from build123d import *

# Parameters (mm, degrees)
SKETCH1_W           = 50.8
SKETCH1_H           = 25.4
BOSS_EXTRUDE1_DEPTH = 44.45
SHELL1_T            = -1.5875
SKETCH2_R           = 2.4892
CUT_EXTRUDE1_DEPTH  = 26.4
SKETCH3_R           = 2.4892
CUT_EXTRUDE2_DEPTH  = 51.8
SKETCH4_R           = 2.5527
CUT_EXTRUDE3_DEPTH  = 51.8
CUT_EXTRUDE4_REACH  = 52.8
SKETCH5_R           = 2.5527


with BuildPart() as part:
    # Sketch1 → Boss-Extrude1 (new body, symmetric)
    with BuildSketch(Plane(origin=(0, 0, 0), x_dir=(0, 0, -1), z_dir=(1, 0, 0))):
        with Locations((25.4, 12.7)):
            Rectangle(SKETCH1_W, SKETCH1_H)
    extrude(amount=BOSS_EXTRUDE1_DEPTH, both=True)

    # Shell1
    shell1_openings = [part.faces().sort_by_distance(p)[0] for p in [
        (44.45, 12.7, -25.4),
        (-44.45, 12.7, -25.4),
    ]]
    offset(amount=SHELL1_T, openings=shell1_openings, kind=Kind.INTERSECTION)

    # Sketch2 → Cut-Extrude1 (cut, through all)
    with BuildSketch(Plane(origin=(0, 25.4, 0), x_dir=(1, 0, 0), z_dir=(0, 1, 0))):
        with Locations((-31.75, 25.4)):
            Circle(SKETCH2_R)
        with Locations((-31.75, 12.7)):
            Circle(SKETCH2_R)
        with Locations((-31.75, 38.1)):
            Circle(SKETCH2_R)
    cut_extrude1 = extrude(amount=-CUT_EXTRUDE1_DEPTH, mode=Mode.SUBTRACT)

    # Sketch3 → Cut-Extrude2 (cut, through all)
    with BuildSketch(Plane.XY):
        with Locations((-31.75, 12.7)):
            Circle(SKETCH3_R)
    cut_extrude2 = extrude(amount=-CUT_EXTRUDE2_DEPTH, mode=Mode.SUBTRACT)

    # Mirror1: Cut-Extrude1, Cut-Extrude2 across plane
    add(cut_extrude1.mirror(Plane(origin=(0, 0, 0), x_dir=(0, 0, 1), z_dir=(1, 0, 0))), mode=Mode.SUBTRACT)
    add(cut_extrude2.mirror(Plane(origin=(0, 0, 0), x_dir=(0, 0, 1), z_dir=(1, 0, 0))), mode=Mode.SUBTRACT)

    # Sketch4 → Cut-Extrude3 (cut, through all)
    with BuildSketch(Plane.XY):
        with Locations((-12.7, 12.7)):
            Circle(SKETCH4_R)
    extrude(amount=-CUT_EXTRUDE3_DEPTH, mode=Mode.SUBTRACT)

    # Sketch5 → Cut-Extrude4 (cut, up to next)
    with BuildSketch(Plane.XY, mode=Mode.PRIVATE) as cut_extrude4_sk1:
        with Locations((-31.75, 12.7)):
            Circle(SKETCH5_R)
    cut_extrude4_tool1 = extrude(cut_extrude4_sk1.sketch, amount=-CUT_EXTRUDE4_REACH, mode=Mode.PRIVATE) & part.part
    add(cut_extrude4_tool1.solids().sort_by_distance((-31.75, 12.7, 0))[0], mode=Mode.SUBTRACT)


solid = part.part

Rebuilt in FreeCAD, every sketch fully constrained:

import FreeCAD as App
import Part
import Sketcher
from FreeCAD import Vector
Q = App.Units.Quantity


def faces_at(feature, points):
    """Names of the faces that lie closest to the given points."""
    faces = feature.Shape.Faces
    near = lambda p: min(range(len(faces)), key=lambda i: faces[i].distToShape(Part.Vertex(*p))[0])
    return sorted({f"Face{near(p) + 1}" for p in points})


def add_polygon(sketch, points):
    """Adds a closed chain of lines whose ends are joined by coincident constraints."""
    first, n = sketch.GeometryCount, len(points)
    for a, b in zip(points, points[1:] + points[:1]):
        sketch.addGeometry(Part.LineSegment(App.Vector(*a, 0), App.Vector(*b, 0)), False)
    for i in range(n):
        sketch.addConstraint(Sketcher.Constraint("Coincident", first + i, 2, first + (i + 1) % n, 1))

doc = App.newDocument("Part")
body = doc.addObject("PartDesign::Body", "Body")

# Sketch on YZ plane
sketch1 = body.newObject("Sketcher::SketchObject", "Sketch")
sketch1.AttachmentSupport = (doc.getObject("YZ_Plane"), [""])
sketch1.MapMode = "FlatFace"
add_polygon(sketch1, [(25, 0), (0, 0), (0, -51), (25, -51)])  # lines 0-3
sketch1.addConstraint(Sketcher.Constraint("Horizontal", 0))
sketch1.addConstraint(Sketcher.Constraint("Vertical", 1))
sketch1.addConstraint(Sketcher.Constraint("Horizontal", 2))
sketch1.addConstraint(Sketcher.Constraint("Vertical", 3))
sketch1.addConstraint(Sketcher.Constraint("Coincident", 0, 2, -1, 1))
sketch1.addConstraint(Sketcher.Constraint("DistanceX", 0, 2, 0, 1, Q("1 in")))
sketch1.addConstraint(Sketcher.Constraint("DistanceY", 1, 2, 1, 1, Q("2 in")))
pad1 = body.newObject("PartDesign::Pad", "Pad")
pad1.Profile = sketch1
pad1.Length = Q("3.5 in")
pad1.Midplane = True
doc.recompute()

thickness = body.newObject("PartDesign::Thickness", "Thickness")
thickness.Base = (pad1, faces_at(pad1, [(44.45, 12.7, -25.4), (-44.45, 12.7, -25.4)]))
thickness.Value = Q("0.0625 in")
thickness.Reversed = True
thickness.Join = "Intersection"

# Sketch on XZ plane
sketch2 = body.newObject("Sketcher::SketchObject", "Sketch001")
sketch2.AttachmentSupport = (doc.getObject("XZ_Plane"), [""])
sketch2.MapMode = "FlatFace"
sketch2.AttachmentOffset = App.Placement(Vector(0, 0, -1 * 25.4), App.Rotation())
sketch2.addGeometry(Part.Circle(Vector(-31.8, -25.4, 0), Vector(0, 0, 1), 2.5), False)
sketch2.addGeometry(Part.Circle(Vector(-31.8, -12.7, 0), Vector(0, 0, 1), 2.5), False)
sketch2.addGeometry(Part.Circle(Vector(-31.8, -38.1, 0), Vector(0, 0, 1), 2.5), False)
sketch2.addConstraint(Sketcher.Constraint("Equal", 0, 1))
sketch2.addConstraint(Sketcher.Constraint("Equal", 1, 2))
sketch2.addConstraint(Sketcher.Constraint("Vertical", 0, 3, 1, 3))
sketch2.addConstraint(Sketcher.Constraint("Vertical", 1, 3, 2, 3))
sketch2.addConstraint(Sketcher.Constraint("Diameter", 0, Q("0.196 in")))
sketch2.addConstraint(Sketcher.Constraint("DistanceY", 0, 3, -1, 1, Q("1 in")))
sketch2.addConstraint(Sketcher.Constraint("DistanceY", 2, 3, 1, 3, Q("1 in")))
sketch2.addConstraint(Sketcher.Constraint("DistanceY", 1, 3, -1, 1, Q("0.5 in")))
sketch2.addConstraint(Sketcher.Constraint("DistanceX", 0, 3, -1, 1, Q("1.25 in")))
pocket1 = body.newObject("PartDesign::Pocket", "Pocket")
pocket1.Profile = sketch2
pocket1.Type = "ThroughAll"
pocket1.Reversed = True

# Sketch on XY plane
sketch3 = body.newObject("Sketcher::SketchObject", "Sketch002")
sketch3.AttachmentSupport = (doc.getObject("XY_Plane"), [""])
sketch3.MapMode = "FlatFace"
sketch3.addGeometry(Part.Circle(Vector(-31.8, 12.7, 0), Vector(0, 0, 1), 2.5), False)
sketch3.addConstraint(Sketcher.Constraint("Diameter", 0, Q("0.196 in")))
sketch3.addConstraint(Sketcher.Constraint("DistanceY", -1, 1, 0, 3, Q("0.5 in")))
sketch3.addConstraint(Sketcher.Constraint("DistanceX", 0, 3, -1, 1, Q("1.25 in")))
pocket2 = body.newObject("PartDesign::Pocket", "Pocket001")
pocket2.Profile = sketch3
pocket2.Type = "ThroughAll"
doc.recompute()

mirrored = body.newObject("PartDesign::Mirrored", "Mirrored")
mirrored.Originals = [pocket1, pocket2]
mirrored.MirrorPlane = (doc.getObject("YZ_Plane"), [""])
body.Tip = mirrored

# Sketch on XY plane
sketch4 = body.newObject("Sketcher::SketchObject", "Sketch003")
sketch4.AttachmentSupport = (doc.getObject("XY_Plane"), [""])
sketch4.MapMode = "FlatFace"
sketch4.addGeometry(Part.Circle(Vector(-12.7, 12.7, 0), Vector(0, 0, 1), 2.6), False)
sketch4.addConstraint(Sketcher.Constraint("Diameter", 0, Q("0.201 in")))
sketch4.addConstraint(Sketcher.Constraint("DistanceX", 0, 3, -1, 1, Q("0.5 in")))
sketch4.addConstraint(Sketcher.Constraint("DistanceY", -1, 1, 0, 3, Q("0.5 in")))
pocket3 = body.newObject("PartDesign::Pocket", "Pocket002")
pocket3.Profile = sketch4
pocket3.Type = "ThroughAll"

# Sketch on XY plane
sketch5 = body.newObject("Sketcher::SketchObject", "Sketch004")
sketch5.AttachmentSupport = (doc.getObject("XY_Plane"), [""])
sketch5.MapMode = "FlatFace"
sketch5.addGeometry(Part.Circle(Vector(-31.8, 12.7, 0), Vector(0, 0, 1), 2.6), False)
sketch5.addConstraint(Sketcher.Constraint("Diameter", 0, Q("0.201 in")))
sketch5.addConstraint(Sketcher.Constraint("DistanceY", -1, 1, 0, 3, Q("0.5 in")))
sketch5.addConstraint(Sketcher.Constraint("DistanceX", 0, 3, -1, 1, Q("1.25 in")))
pocket4 = body.newObject("PartDesign::Pocket", "Pocket003")
pocket4.Profile = sketch5
pocket4.Length = Q("0.0625 in")

doc.recompute()
